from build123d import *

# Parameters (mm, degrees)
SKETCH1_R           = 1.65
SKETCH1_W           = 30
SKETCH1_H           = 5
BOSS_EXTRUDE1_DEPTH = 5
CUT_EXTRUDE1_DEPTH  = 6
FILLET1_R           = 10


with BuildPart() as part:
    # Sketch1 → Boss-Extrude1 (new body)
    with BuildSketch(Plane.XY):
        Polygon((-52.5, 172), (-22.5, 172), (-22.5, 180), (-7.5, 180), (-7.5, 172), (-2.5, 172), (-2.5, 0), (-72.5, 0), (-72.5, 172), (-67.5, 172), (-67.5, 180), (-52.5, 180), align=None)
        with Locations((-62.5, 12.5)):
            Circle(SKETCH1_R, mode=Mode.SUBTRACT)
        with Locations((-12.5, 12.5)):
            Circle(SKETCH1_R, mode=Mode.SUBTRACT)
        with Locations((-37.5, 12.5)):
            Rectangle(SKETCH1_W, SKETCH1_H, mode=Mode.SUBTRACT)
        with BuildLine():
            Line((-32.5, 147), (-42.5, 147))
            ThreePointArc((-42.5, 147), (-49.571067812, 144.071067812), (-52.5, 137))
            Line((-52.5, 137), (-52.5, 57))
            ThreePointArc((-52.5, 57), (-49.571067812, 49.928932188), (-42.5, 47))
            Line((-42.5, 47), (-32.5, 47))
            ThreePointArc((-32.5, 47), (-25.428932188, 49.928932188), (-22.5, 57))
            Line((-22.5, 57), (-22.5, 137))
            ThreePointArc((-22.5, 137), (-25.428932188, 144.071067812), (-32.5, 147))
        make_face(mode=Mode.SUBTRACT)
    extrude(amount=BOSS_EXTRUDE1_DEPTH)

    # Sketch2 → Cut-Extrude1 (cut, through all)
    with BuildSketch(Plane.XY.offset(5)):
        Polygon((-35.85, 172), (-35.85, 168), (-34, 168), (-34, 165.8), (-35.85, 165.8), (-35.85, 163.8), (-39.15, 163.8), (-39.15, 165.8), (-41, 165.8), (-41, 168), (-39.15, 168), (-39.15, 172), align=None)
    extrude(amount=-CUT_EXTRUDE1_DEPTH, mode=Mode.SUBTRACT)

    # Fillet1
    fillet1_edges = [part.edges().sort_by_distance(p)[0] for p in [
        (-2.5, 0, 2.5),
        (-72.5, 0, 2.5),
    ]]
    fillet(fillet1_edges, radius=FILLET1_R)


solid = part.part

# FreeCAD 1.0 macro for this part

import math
import FreeCAD as App
import Part
import Sketcher

V = App.Vector
Q = App.Units.Quantity


def edges_at(feature, points):
    """Names of the edges that pass closest to the given points."""
    edges = feature.Shape.Edges
    near = lambda p: min(range(len(edges)), key=lambda i: edges[i].distToShape(Part.Vertex(*p))[0])
    return sorted({f"Edge{near(p) + 1}" for p in points})

doc = App.newDocument("Part")
body = doc.addObject("PartDesign::Body", "Body")

sketch1 = body.newObject("Sketcher::SketchObject", "Sketch")
sketch1.AttachmentSupport = (doc.getObject("XY_Plane"), [""])
sketch1.MapMode = "FlatFace"
sketch1.addGeometry([
    Part.LineSegment(V(-22.5, 172, 0), V(-52.5, 172, 0)),
    Part.LineSegment(V(-52.5, 172, 0), V(-52.5, 180, 0)),
    Part.LineSegment(V(-52.5, 180, 0), V(-67.5, 180, 0)),
    Part.LineSegment(V(-67.5, 180, 0), V(-67.5, 172, 0)),
    Part.LineSegment(V(-67.5, 172, 0), V(-72.5, 172, 0)),
    Part.LineSegment(V(-72.5, 172, 0), V(-72.5, 0, 0)),
    Part.LineSegment(V(-72.5, 0, 0), V(-2.5, 0, 0)),
    Part.LineSegment(V(-2.5, 0, 0), V(-2.5, 172, 0)),
    Part.LineSegment(V(-2.5, 172, 0), V(-7.5, 172, 0)),
    Part.LineSegment(V(-7.5, 172, 0), V(-7.5, 180, 0)),
    Part.LineSegment(V(-7.5, 180, 0), V(-22.5, 180, 0)),
    Part.LineSegment(V(-22.5, 180, 0), V(-22.5, 172, 0)),
    Part.Circle(V(-12.5, 12.5, 0), V(0, 0, 1), 1.6),
    Part.LineSegment(V(-52.5, 10, 0), V(-52.5, 15, 0)),
    Part.LineSegment(V(-52.5, 15, 0), V(-22.5, 15, 0)),
    Part.LineSegment(V(-22.5, 15, 0), V(-22.5, 10, 0)),
    Part.LineSegment(V(-22.5, 10, 0), V(-52.5, 10, 0)),
    Part.Circle(V(-62.5, 12.5, 0), V(0, 0, 1), 1.6),
    Part.ArcOfCircle(Part.Circle(V(-32.5, 137, 0), V(0, 0, 1), 10), math.radians(0), math.radians(90)),
    Part.LineSegment(V(-22.5, 137, 0), V(-22.5, 57, 0)),
    Part.ArcOfCircle(Part.Circle(V(-32.5, 57, 0), V(0, 0, 1), 10), math.radians(-90), math.radians(0)),
    Part.LineSegment(V(-32.5, 47, 0), V(-42.5, 47, 0)),
    Part.ArcOfCircle(Part.Circle(V(-42.5, 57, 0), V(0, 0, 1), 10), math.radians(180), math.radians(270)),
    Part.LineSegment(V(-52.5, 57, 0), V(-52.5, 137, 0)),
    Part.ArcOfCircle(Part.Circle(V(-42.5, 137, 0), V(0, 0, 1), 10), math.radians(90), math.radians(180)),
    Part.LineSegment(V(-42.5, 147, 0), V(-32.5, 147, 0)),
], False)
sketch1.addConstraint([
    Sketcher.Constraint("Coincident", 0, 2, 1, 1),
    Sketcher.Constraint("Coincident", 1, 2, 2, 1),
    Sketcher.Constraint("Coincident", 2, 2, 3, 1),
    Sketcher.Constraint("Coincident", 3, 2, 4, 1),
    Sketcher.Constraint("Coincident", 4, 2, 5, 1),
    Sketcher.Constraint("Coincident", 5, 2, 6, 1),
    Sketcher.Constraint("Coincident", 6, 2, 7, 1),
    Sketcher.Constraint("Coincident", 7, 2, 8, 1),
    Sketcher.Constraint("Coincident", 8, 2, 9, 1),
    Sketcher.Constraint("Coincident", 9, 2, 10, 1),
    Sketcher.Constraint("Coincident", 10, 2, 11, 1),
    Sketcher.Constraint("Coincident", 11, 2, 0, 1),
    Sketcher.Constraint("Coincident", 13, 2, 14, 1),
    Sketcher.Constraint("Coincident", 14, 2, 15, 1),
    Sketcher.Constraint("Coincident", 15, 2, 16, 1),
    Sketcher.Constraint("Coincident", 16, 2, 13, 1),
    Sketcher.Constraint("Tangent", 18, 1, 19, 1),
    Sketcher.Constraint("Tangent", 19, 2, 20, 2),
    Sketcher.Constraint("Tangent", 20, 1, 21, 1),
    Sketcher.Constraint("Tangent", 21, 2, 22, 2),
    Sketcher.Constraint("Tangent", 22, 1, 23, 1),
    Sketcher.Constraint("Tangent", 23, 2, 24, 2),
    Sketcher.Constraint("Tangent", 24, 1, 25, 1),
    Sketcher.Constraint("Tangent", 25, 2, 18, 2),
    Sketcher.Constraint("Horizontal", 0),
    Sketcher.Constraint("Vertical", 1),
    Sketcher.Constraint("Horizontal", 2),
    Sketcher.Constraint("Vertical", 3),
    Sketcher.Constraint("Horizontal", 4),
    Sketcher.Constraint("Vertical", 5),
    Sketcher.Constraint("Horizontal", 6),
    Sketcher.Constraint("Vertical", 7),
    Sketcher.Constraint("Horizontal", 8),
    Sketcher.Constraint("Vertical", 9),
    Sketcher.Constraint("Horizontal", 10),
    Sketcher.Constraint("Vertical", 11),
    Sketcher.Constraint("Vertical", 13),
    Sketcher.Constraint("Horizontal", 14),
    Sketcher.Constraint("Vertical", 15),
    Sketcher.Constraint("Horizontal", 16),
    Sketcher.Constraint("Vertical", 19),
    Sketcher.Constraint("Horizontal", 21),
    Sketcher.Constraint("Vertical", 23),
    Sketcher.Constraint("Horizontal", 25),
    Sketcher.Constraint("Equal", 12, 17),
    Sketcher.Constraint("Equal", 18, 20),
    Sketcher.Constraint("Equal", 20, 22),
    Sketcher.Constraint("Equal", 22, 24),
    Sketcher.Constraint("PointOnObject", 5, 2, -1),
    Sketcher.Constraint("Horizontal", 12, 3, 17, 3),
    Sketcher.Constraint("Horizontal", 0, 2, 3, 2),
    Sketcher.Constraint("Horizontal", 4, 2, 7, 2),
    Sketcher.Constraint("Horizontal", 2, 2, 9, 2),
    Sketcher.Constraint("Vertical", 1, 2, 13, 2),
    Sketcher.Constraint("Vertical", 11, 2, 14, 2),
    Sketcher.Constraint("Vertical", 15, 2, 18, 1),
    Sketcher.Constraint("Vertical", 16, 2, 22, 1),
    Sketcher.Constraint("Equal", 4, 8),
    Sketcher.Constraint("Equal", 2, 10),
    Sketcher.Constraint("Equal", 8, 13),
    Sketcher.Constraint("Radius", 18, Q("10 mm")),
    Sketcher.Constraint("Diameter", 12, Q("3.3 mm")),
    Sketcher.Constraint("DistanceX", 0, 2, 0, 1, Q("30 mm")),
    Sketcher.Constraint("DistanceX", 2, 2, 2, 1, Q("15 mm")),
    Sketcher.Constraint("DistanceX", 4, 2, 4, 1, Q("5 mm")),
    Sketcher.Constraint("DistanceY", 1, 1, 1, 2, Q("8 mm")),
    Sketcher.Constraint("DistanceY", 5, 2, 5, 1, Q("172 mm")),
    Sketcher.Constraint("DistanceY", 19, 2, 19, 1, Q("80 mm")),
    Sketcher.Constraint("DistanceY", -1, 1, 18, 3, Q("137 mm")),
    Sketcher.Constraint("DistanceY", -1, 1, 13, 2, Q("15 mm")),
    Sketcher.Constraint("DistanceX", 17, 3, 12, 3, Q("50 mm")),
    Sketcher.Constraint("DistanceX", 18, 3, 12, 3, Q("20 mm")),
    Sketcher.Constraint("DistanceX", 12, 3, -1, 1, Q("12.5 mm")),
    Sketcher.Constraint("DistanceY", -1, 1, 12, 3, Q("12.5 mm")),
])
pad1 = body.newObject("PartDesign::Pad", "Pad")
pad1.Profile = sketch1
pad1.Length = 5

sketch2 = body.newObject("Sketcher::SketchObject", "Sketch001")
sketch2.AttachmentSupport = (doc.getObject("XY_Plane"), [""])
sketch2.MapMode = "FlatFace"
sketch2.AttachmentOffset = App.Placement(V(0, 0, 5), App.Rotation())
sketch2.addGeometry([
    Part.LineSegment(V(-35.9, 168, 0), V(-35.9, 172, 0)),
    Part.LineSegment(V(-35.9, 172, 0), V(-39.1, 172, 0)),
    Part.LineSegment(V(-39.1, 172, 0), V(-39.1, 168, 0)),
    Part.LineSegment(V(-39.1, 168, 0), V(-41, 168, 0)),
    Part.LineSegment(V(-41, 168, 0), V(-41, 165.8, 0)),
    Part.LineSegment(V(-41, 165.8, 0), V(-39.1, 165.8, 0)),
    Part.LineSegment(V(-39.1, 165.8, 0), V(-39.1, 163.8, 0)),
    Part.LineSegment(V(-39.1, 163.8, 0), V(-35.9, 163.8, 0)),
    Part.LineSegment(V(-35.9, 163.8, 0), V(-35.9, 165.8, 0)),
    Part.LineSegment(V(-35.9, 165.8, 0), V(-34, 165.8, 0)),
    Part.LineSegment(V(-34, 165.8, 0), V(-34, 168, 0)),
    Part.LineSegment(V(-34, 168, 0), V(-35.9, 168, 0)),
], False)
sketch2.addConstraint([
    Sketcher.Constraint("Coincident", 0, 2, 1, 1),
    Sketcher.Constraint("Coincident", 1, 2, 2, 1),
    Sketcher.Constraint("Coincident", 2, 2, 3, 1),
    Sketcher.Constraint("Coincident", 3, 2, 4, 1),
    Sketcher.Constraint("Coincident", 4, 2, 5, 1),
    Sketcher.Constraint("Coincident", 5, 2, 6, 1),
    Sketcher.Constraint("Coincident", 6, 2, 7, 1),
    Sketcher.Constraint("Coincident", 7, 2, 8, 1),
    Sketcher.Constraint("Coincident", 8, 2, 9, 1),
    Sketcher.Constraint("Coincident", 9, 2, 10, 1),
    Sketcher.Constraint("Coincident", 10, 2, 11, 1),
    Sketcher.Constraint("Coincident", 11, 2, 0, 1),
    Sketcher.Constraint("Vertical", 0),
    Sketcher.Constraint("Horizontal", 1),
    Sketcher.Constraint("Vertical", 2),
    Sketcher.Constraint("Horizontal", 3),
    Sketcher.Constraint("Vertical", 4),
    Sketcher.Constraint("Horizontal", 5),
    Sketcher.Constraint("Vertical", 6),
    Sketcher.Constraint("Horizontal", 7),
    Sketcher.Constraint("Vertical", 8),
    Sketcher.Constraint("Horizontal", 9),
    Sketcher.Constraint("Vertical", 10),
    Sketcher.Constraint("Horizontal", 11),
    Sketcher.Constraint("Horizontal", 5, 2, 8, 2),
    Sketcher.Constraint("Horizontal", 3, 2, 10, 2),
    Sketcher.Constraint("Vertical", 2, 2, 5, 2),
    Sketcher.Constraint("Vertical", 0, 2, 7, 2),
    Sketcher.Constraint("Equal", 5, 9),
    Sketcher.Constraint("DistanceY", 0, 1, 0, 2, Q("4 mm")),
    Sketcher.Constraint("DistanceY", 6, 2, 6, 1, Q("2 mm")),
    Sketcher.Constraint("DistanceX", 1, 2, 1, 1, Q("3.3 mm")),
    Sketcher.Constraint("DistanceY", 4, 2, 4, 1, Q("2.2 mm")),
    Sketcher.Constraint("DistanceY", -1, 1, 0, 2, Q("172 mm")),
    Sketcher.Constraint("DistanceX", 3, 2, -1, 1, Q("41 mm")),
    Sketcher.Constraint("DistanceX", 9, 2, -1, 1, Q("34 mm")),
])
pocket1 = body.newObject("PartDesign::Pocket", "Pocket")
pocket1.Profile = sketch2
pocket1.Type = "ThroughAll"
doc.recompute()

fillet = body.newObject("PartDesign::Fillet", "Fillet")
fillet.Base = (pocket1, edges_at(pocket1, [(-2.5, 0, 2.5), (-72.5, 0, 2.5)]))
fillet.Radius = 10

doc.recompute()
